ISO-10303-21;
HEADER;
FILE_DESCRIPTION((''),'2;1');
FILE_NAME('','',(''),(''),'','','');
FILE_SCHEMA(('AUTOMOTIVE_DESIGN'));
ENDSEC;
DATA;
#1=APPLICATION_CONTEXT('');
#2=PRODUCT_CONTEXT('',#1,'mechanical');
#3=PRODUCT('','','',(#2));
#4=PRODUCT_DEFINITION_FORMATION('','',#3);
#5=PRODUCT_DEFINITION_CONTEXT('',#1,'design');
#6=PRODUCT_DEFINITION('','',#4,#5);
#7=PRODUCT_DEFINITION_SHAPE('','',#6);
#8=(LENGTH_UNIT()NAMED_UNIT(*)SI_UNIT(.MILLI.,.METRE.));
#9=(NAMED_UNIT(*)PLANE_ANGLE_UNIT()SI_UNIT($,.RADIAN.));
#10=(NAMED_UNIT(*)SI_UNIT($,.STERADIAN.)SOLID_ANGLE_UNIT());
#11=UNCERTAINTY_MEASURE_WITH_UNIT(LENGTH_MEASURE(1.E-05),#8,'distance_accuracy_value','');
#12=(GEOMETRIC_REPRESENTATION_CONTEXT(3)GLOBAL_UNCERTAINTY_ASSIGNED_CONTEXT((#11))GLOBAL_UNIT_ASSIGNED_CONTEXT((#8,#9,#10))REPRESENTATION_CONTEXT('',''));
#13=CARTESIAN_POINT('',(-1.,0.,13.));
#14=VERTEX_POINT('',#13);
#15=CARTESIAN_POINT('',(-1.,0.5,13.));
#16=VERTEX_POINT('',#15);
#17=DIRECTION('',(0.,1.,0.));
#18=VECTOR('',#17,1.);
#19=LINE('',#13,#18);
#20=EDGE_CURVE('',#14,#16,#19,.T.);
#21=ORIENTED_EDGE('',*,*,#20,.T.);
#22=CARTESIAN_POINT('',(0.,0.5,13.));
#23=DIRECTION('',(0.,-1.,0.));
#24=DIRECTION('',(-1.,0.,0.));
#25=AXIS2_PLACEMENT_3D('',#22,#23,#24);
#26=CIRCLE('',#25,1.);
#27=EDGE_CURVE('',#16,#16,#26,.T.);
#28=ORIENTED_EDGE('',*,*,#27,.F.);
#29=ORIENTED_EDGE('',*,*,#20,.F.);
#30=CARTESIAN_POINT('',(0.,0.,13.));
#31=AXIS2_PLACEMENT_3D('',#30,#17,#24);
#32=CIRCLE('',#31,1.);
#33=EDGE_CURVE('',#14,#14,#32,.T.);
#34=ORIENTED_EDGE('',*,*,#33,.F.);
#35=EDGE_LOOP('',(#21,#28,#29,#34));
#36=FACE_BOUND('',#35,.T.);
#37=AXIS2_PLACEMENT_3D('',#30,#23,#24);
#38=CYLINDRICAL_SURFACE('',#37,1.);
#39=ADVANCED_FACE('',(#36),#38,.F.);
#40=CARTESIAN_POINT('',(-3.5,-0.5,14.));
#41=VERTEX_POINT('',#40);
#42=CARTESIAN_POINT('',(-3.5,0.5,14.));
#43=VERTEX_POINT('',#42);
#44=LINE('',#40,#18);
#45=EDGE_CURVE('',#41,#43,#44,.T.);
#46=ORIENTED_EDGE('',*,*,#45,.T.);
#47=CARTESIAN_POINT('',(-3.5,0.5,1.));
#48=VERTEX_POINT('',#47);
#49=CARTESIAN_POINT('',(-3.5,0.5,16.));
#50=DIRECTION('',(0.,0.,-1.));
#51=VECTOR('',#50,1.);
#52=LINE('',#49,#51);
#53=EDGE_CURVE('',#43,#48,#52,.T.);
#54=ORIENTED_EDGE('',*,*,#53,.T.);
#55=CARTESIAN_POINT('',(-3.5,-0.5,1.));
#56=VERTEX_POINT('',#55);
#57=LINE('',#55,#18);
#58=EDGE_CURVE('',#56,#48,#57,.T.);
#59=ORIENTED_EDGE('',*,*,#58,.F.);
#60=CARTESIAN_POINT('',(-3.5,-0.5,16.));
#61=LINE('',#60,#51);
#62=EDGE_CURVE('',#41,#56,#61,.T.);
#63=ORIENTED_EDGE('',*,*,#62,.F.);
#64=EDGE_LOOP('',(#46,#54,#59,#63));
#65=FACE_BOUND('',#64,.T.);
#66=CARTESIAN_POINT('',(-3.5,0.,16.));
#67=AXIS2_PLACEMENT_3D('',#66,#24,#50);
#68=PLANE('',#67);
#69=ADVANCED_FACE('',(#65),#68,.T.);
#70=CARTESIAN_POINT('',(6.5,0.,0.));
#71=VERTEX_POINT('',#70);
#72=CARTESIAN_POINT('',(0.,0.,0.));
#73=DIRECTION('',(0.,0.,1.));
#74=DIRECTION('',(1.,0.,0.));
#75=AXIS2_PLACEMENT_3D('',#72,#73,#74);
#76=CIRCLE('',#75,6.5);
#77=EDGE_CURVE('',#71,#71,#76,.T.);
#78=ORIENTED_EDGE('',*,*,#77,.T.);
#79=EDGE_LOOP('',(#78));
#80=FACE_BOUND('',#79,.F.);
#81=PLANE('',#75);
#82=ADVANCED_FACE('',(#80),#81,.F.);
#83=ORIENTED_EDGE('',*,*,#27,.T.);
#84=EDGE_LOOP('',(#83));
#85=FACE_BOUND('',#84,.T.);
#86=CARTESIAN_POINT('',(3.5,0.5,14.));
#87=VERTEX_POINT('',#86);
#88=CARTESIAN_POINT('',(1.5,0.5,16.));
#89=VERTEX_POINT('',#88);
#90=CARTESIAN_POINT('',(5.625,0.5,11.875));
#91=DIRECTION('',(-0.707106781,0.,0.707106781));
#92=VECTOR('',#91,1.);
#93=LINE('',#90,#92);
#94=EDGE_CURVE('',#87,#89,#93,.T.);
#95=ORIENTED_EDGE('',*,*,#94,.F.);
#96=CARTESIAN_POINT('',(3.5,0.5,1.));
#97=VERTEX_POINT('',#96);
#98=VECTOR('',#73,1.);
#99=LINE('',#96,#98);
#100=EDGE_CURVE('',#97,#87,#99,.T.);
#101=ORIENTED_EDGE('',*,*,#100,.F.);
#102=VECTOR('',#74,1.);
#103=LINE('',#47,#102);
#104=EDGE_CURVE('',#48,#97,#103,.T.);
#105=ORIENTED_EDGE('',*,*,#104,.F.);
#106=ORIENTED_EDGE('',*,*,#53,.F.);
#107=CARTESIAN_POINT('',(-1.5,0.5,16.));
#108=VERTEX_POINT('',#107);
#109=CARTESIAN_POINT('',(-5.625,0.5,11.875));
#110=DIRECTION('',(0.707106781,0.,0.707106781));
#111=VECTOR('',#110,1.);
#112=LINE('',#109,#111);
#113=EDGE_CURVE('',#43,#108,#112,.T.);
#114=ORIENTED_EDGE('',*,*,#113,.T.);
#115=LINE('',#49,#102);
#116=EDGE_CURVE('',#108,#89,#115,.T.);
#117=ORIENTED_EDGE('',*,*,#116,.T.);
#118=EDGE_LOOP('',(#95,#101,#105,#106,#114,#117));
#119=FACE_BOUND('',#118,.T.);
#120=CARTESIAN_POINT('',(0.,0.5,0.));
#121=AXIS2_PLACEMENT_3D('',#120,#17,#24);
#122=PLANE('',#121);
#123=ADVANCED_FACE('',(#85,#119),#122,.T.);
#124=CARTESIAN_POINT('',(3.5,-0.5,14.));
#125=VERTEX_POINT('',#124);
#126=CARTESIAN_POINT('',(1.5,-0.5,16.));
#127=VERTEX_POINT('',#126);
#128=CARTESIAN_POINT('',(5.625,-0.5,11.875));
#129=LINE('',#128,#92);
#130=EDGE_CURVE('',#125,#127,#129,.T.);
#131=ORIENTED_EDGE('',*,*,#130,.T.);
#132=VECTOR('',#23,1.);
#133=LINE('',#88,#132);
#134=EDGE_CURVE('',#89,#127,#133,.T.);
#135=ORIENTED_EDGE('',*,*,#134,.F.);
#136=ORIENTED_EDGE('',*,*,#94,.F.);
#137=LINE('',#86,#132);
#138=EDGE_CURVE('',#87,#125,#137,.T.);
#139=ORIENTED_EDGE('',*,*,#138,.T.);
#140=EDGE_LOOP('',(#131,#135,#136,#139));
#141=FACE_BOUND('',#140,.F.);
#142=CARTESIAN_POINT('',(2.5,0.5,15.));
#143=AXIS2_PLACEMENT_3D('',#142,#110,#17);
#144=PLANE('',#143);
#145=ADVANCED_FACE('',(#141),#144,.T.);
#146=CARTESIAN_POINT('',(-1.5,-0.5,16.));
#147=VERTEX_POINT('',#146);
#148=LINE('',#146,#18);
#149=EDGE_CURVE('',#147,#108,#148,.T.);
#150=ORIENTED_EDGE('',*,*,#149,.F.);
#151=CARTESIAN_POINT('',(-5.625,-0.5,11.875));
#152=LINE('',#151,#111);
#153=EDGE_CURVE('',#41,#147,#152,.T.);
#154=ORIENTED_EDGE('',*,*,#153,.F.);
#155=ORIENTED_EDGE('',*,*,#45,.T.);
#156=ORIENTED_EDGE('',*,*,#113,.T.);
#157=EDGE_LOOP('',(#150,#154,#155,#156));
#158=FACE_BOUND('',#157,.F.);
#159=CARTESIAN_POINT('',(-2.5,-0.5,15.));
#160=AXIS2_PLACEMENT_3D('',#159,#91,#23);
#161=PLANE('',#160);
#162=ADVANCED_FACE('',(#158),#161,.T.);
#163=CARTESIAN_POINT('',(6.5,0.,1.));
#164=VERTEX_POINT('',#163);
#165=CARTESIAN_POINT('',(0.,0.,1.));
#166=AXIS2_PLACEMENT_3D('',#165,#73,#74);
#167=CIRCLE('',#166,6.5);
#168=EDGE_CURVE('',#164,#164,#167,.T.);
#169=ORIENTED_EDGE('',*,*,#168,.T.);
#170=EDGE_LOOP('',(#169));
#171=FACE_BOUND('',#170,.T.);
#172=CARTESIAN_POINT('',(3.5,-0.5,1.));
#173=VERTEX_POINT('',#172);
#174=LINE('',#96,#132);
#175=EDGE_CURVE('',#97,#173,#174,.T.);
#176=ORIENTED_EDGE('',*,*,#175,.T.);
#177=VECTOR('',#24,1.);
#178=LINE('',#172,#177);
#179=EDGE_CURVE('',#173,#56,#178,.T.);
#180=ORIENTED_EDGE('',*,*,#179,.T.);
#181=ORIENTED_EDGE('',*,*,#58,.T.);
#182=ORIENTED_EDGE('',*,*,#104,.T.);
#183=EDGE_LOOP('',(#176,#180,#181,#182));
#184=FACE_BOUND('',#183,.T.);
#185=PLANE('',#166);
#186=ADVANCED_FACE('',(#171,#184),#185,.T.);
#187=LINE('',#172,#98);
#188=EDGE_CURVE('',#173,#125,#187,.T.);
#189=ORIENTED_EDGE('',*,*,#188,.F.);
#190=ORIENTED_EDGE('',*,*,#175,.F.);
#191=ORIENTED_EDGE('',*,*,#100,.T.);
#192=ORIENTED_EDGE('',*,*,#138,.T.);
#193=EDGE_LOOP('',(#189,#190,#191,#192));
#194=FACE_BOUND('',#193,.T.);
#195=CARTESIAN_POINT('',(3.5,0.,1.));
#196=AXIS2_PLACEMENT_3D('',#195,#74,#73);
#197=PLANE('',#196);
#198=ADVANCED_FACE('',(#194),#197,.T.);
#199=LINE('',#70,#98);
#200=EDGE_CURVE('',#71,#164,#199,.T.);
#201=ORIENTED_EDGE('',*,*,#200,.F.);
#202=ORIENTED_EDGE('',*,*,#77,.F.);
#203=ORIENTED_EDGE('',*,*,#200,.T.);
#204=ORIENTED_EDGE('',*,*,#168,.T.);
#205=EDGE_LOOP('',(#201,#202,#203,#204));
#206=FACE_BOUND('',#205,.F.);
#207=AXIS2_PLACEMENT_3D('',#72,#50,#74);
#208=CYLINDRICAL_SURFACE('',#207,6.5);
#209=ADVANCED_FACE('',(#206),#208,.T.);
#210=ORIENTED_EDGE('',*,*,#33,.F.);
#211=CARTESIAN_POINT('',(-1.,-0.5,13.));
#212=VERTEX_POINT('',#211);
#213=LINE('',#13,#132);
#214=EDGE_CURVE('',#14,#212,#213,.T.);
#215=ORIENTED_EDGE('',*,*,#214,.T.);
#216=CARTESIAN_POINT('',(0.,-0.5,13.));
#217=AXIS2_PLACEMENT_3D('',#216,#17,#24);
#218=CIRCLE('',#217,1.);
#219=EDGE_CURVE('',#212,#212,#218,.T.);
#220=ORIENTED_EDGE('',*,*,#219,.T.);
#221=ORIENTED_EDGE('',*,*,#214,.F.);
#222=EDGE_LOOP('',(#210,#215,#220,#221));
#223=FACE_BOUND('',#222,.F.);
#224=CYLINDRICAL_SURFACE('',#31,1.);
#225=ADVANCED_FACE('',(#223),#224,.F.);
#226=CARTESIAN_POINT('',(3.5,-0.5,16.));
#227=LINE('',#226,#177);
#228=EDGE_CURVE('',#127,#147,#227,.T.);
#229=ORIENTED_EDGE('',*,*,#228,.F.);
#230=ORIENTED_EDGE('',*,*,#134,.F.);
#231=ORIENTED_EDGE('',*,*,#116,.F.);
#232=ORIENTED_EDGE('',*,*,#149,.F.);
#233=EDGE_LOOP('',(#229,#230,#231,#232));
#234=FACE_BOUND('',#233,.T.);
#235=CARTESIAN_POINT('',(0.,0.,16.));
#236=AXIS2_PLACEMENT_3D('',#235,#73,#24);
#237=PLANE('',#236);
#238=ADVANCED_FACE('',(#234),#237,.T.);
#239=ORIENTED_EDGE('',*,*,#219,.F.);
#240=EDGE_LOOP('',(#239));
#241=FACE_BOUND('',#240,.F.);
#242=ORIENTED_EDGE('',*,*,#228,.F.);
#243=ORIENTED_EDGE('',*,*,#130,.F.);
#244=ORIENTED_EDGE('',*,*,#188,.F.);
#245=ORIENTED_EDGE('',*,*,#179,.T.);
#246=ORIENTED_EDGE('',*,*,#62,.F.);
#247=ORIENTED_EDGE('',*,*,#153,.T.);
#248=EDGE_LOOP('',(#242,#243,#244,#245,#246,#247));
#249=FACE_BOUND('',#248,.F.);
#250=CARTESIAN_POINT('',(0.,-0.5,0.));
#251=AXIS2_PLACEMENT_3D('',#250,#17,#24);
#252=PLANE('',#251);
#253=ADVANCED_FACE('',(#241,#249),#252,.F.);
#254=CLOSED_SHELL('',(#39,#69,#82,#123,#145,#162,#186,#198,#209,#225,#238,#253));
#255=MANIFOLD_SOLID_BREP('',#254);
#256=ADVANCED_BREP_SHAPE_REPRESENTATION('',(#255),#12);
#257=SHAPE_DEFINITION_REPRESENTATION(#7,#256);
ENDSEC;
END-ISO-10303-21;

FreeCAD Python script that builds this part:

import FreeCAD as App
import Part
import Sketcher

V = App.Vector
Q = App.Units.Quantity


def edges_at(feature, points):
    """Names of the edges that pass closest to the given points."""
    edges = feature.Shape.Edges
    near = lambda p: min(range(len(edges)), key=lambda i: edges[i].distToShape(Part.Vertex(*p))[0])
    return sorted({f"Edge{near(p) + 1}" for p in points})

doc = App.newDocument("Part")
body = doc.addObject("PartDesign::Body", "Body")

# Sketch on XY plane
sketch1 = body.newObject("Sketcher::SketchObject", "Sketch")
sketch1.AttachmentSupport = (doc.getObject("XY_Plane"), [""])
sketch1.MapMode = "FlatFace"
sketch1.addGeometry(Part.Circle(V(0, 0, 0), V(0, 0, 1), 6), False)
sketch1.addConstraint([
    Sketcher.Constraint("Coincident", 0, 3, -1, 1),
    Sketcher.Constraint("Diameter", 0, Q("13 mm")),
])
pad1 = body.newObject("PartDesign::Pad", "Pad")
pad1.Profile = sketch1
pad1.Length = 1

# Sketch on XZ plane
sketch2 = body.newObject("Sketcher::SketchObject", "Sketch001")
sketch2.AttachmentSupport = (doc.getObject("XZ_Plane"), [""])
sketch2.MapMode = "FlatFace"
sketch2.addGeometry([
    Part.LineSegment(V(-3.5, 1, 0), V(-3.5, 16, 0)),  # 0
    Part.LineSegment(V(-3.5, 16, 0), V(3.5, 16, 0)),  # 1
    Part.LineSegment(V(3.5, 16, 0), V(3.5, 1, 0)),  # 2
    Part.LineSegment(V(3.5, 1, 0), V(-3.5, 1, 0)),  # 3
    Part.Circle(V(0, 13, 0), V(0, 0, 1), 1),  # 4
], False)
sketch2.addConstraint([
    Sketcher.Constraint("Coincident", 0, 2, 1, 1),
    Sketcher.Constraint("Coincident", 1, 2, 2, 1),
    Sketcher.Constraint("Coincident", 2, 2, 3, 1),
    Sketcher.Constraint("Coincident", 3, 2, 0, 1),
    Sketcher.Constraint("Vertical", 0),
    Sketcher.Constraint("Horizontal", 1),
    Sketcher.Constraint("Vertical", 2),
    Sketcher.Constraint("Horizontal", 3),
    Sketcher.Constraint("PointOnObject", 4, 3, -2),
    Sketcher.Constraint("Diameter", 4, Q("2 mm")),
    Sketcher.Constraint("DistanceX", 1, 1, 1, 2, Q("7 mm")),
    Sketcher.Constraint("DistanceY", 0, 1, 0, 2, Q("15 mm")),
    Sketcher.Constraint("DistanceY", -1, 1, 4, 3, Q("13 mm")),
    Sketcher.Constraint("DistanceY", 4, 3, 0, 2, Q("3 mm")),
    Sketcher.Constraint("DistanceX", 0, 2, -1, 1, Q("3.5 mm")),
])
pad2 = body.newObject("PartDesign::Pad", "Pad001")
pad2.Profile = sketch2
pad2.Length = 1
pad2.Midplane = True
doc.recompute()

chamfer = body.newObject("PartDesign::Chamfer", "Chamfer")
chamfer.Base = (pad2, edges_at(pad2, [(3.5, 0, 16), (-3.5, 0, 16)]))
chamfer.Size = 2

doc.recompute()
